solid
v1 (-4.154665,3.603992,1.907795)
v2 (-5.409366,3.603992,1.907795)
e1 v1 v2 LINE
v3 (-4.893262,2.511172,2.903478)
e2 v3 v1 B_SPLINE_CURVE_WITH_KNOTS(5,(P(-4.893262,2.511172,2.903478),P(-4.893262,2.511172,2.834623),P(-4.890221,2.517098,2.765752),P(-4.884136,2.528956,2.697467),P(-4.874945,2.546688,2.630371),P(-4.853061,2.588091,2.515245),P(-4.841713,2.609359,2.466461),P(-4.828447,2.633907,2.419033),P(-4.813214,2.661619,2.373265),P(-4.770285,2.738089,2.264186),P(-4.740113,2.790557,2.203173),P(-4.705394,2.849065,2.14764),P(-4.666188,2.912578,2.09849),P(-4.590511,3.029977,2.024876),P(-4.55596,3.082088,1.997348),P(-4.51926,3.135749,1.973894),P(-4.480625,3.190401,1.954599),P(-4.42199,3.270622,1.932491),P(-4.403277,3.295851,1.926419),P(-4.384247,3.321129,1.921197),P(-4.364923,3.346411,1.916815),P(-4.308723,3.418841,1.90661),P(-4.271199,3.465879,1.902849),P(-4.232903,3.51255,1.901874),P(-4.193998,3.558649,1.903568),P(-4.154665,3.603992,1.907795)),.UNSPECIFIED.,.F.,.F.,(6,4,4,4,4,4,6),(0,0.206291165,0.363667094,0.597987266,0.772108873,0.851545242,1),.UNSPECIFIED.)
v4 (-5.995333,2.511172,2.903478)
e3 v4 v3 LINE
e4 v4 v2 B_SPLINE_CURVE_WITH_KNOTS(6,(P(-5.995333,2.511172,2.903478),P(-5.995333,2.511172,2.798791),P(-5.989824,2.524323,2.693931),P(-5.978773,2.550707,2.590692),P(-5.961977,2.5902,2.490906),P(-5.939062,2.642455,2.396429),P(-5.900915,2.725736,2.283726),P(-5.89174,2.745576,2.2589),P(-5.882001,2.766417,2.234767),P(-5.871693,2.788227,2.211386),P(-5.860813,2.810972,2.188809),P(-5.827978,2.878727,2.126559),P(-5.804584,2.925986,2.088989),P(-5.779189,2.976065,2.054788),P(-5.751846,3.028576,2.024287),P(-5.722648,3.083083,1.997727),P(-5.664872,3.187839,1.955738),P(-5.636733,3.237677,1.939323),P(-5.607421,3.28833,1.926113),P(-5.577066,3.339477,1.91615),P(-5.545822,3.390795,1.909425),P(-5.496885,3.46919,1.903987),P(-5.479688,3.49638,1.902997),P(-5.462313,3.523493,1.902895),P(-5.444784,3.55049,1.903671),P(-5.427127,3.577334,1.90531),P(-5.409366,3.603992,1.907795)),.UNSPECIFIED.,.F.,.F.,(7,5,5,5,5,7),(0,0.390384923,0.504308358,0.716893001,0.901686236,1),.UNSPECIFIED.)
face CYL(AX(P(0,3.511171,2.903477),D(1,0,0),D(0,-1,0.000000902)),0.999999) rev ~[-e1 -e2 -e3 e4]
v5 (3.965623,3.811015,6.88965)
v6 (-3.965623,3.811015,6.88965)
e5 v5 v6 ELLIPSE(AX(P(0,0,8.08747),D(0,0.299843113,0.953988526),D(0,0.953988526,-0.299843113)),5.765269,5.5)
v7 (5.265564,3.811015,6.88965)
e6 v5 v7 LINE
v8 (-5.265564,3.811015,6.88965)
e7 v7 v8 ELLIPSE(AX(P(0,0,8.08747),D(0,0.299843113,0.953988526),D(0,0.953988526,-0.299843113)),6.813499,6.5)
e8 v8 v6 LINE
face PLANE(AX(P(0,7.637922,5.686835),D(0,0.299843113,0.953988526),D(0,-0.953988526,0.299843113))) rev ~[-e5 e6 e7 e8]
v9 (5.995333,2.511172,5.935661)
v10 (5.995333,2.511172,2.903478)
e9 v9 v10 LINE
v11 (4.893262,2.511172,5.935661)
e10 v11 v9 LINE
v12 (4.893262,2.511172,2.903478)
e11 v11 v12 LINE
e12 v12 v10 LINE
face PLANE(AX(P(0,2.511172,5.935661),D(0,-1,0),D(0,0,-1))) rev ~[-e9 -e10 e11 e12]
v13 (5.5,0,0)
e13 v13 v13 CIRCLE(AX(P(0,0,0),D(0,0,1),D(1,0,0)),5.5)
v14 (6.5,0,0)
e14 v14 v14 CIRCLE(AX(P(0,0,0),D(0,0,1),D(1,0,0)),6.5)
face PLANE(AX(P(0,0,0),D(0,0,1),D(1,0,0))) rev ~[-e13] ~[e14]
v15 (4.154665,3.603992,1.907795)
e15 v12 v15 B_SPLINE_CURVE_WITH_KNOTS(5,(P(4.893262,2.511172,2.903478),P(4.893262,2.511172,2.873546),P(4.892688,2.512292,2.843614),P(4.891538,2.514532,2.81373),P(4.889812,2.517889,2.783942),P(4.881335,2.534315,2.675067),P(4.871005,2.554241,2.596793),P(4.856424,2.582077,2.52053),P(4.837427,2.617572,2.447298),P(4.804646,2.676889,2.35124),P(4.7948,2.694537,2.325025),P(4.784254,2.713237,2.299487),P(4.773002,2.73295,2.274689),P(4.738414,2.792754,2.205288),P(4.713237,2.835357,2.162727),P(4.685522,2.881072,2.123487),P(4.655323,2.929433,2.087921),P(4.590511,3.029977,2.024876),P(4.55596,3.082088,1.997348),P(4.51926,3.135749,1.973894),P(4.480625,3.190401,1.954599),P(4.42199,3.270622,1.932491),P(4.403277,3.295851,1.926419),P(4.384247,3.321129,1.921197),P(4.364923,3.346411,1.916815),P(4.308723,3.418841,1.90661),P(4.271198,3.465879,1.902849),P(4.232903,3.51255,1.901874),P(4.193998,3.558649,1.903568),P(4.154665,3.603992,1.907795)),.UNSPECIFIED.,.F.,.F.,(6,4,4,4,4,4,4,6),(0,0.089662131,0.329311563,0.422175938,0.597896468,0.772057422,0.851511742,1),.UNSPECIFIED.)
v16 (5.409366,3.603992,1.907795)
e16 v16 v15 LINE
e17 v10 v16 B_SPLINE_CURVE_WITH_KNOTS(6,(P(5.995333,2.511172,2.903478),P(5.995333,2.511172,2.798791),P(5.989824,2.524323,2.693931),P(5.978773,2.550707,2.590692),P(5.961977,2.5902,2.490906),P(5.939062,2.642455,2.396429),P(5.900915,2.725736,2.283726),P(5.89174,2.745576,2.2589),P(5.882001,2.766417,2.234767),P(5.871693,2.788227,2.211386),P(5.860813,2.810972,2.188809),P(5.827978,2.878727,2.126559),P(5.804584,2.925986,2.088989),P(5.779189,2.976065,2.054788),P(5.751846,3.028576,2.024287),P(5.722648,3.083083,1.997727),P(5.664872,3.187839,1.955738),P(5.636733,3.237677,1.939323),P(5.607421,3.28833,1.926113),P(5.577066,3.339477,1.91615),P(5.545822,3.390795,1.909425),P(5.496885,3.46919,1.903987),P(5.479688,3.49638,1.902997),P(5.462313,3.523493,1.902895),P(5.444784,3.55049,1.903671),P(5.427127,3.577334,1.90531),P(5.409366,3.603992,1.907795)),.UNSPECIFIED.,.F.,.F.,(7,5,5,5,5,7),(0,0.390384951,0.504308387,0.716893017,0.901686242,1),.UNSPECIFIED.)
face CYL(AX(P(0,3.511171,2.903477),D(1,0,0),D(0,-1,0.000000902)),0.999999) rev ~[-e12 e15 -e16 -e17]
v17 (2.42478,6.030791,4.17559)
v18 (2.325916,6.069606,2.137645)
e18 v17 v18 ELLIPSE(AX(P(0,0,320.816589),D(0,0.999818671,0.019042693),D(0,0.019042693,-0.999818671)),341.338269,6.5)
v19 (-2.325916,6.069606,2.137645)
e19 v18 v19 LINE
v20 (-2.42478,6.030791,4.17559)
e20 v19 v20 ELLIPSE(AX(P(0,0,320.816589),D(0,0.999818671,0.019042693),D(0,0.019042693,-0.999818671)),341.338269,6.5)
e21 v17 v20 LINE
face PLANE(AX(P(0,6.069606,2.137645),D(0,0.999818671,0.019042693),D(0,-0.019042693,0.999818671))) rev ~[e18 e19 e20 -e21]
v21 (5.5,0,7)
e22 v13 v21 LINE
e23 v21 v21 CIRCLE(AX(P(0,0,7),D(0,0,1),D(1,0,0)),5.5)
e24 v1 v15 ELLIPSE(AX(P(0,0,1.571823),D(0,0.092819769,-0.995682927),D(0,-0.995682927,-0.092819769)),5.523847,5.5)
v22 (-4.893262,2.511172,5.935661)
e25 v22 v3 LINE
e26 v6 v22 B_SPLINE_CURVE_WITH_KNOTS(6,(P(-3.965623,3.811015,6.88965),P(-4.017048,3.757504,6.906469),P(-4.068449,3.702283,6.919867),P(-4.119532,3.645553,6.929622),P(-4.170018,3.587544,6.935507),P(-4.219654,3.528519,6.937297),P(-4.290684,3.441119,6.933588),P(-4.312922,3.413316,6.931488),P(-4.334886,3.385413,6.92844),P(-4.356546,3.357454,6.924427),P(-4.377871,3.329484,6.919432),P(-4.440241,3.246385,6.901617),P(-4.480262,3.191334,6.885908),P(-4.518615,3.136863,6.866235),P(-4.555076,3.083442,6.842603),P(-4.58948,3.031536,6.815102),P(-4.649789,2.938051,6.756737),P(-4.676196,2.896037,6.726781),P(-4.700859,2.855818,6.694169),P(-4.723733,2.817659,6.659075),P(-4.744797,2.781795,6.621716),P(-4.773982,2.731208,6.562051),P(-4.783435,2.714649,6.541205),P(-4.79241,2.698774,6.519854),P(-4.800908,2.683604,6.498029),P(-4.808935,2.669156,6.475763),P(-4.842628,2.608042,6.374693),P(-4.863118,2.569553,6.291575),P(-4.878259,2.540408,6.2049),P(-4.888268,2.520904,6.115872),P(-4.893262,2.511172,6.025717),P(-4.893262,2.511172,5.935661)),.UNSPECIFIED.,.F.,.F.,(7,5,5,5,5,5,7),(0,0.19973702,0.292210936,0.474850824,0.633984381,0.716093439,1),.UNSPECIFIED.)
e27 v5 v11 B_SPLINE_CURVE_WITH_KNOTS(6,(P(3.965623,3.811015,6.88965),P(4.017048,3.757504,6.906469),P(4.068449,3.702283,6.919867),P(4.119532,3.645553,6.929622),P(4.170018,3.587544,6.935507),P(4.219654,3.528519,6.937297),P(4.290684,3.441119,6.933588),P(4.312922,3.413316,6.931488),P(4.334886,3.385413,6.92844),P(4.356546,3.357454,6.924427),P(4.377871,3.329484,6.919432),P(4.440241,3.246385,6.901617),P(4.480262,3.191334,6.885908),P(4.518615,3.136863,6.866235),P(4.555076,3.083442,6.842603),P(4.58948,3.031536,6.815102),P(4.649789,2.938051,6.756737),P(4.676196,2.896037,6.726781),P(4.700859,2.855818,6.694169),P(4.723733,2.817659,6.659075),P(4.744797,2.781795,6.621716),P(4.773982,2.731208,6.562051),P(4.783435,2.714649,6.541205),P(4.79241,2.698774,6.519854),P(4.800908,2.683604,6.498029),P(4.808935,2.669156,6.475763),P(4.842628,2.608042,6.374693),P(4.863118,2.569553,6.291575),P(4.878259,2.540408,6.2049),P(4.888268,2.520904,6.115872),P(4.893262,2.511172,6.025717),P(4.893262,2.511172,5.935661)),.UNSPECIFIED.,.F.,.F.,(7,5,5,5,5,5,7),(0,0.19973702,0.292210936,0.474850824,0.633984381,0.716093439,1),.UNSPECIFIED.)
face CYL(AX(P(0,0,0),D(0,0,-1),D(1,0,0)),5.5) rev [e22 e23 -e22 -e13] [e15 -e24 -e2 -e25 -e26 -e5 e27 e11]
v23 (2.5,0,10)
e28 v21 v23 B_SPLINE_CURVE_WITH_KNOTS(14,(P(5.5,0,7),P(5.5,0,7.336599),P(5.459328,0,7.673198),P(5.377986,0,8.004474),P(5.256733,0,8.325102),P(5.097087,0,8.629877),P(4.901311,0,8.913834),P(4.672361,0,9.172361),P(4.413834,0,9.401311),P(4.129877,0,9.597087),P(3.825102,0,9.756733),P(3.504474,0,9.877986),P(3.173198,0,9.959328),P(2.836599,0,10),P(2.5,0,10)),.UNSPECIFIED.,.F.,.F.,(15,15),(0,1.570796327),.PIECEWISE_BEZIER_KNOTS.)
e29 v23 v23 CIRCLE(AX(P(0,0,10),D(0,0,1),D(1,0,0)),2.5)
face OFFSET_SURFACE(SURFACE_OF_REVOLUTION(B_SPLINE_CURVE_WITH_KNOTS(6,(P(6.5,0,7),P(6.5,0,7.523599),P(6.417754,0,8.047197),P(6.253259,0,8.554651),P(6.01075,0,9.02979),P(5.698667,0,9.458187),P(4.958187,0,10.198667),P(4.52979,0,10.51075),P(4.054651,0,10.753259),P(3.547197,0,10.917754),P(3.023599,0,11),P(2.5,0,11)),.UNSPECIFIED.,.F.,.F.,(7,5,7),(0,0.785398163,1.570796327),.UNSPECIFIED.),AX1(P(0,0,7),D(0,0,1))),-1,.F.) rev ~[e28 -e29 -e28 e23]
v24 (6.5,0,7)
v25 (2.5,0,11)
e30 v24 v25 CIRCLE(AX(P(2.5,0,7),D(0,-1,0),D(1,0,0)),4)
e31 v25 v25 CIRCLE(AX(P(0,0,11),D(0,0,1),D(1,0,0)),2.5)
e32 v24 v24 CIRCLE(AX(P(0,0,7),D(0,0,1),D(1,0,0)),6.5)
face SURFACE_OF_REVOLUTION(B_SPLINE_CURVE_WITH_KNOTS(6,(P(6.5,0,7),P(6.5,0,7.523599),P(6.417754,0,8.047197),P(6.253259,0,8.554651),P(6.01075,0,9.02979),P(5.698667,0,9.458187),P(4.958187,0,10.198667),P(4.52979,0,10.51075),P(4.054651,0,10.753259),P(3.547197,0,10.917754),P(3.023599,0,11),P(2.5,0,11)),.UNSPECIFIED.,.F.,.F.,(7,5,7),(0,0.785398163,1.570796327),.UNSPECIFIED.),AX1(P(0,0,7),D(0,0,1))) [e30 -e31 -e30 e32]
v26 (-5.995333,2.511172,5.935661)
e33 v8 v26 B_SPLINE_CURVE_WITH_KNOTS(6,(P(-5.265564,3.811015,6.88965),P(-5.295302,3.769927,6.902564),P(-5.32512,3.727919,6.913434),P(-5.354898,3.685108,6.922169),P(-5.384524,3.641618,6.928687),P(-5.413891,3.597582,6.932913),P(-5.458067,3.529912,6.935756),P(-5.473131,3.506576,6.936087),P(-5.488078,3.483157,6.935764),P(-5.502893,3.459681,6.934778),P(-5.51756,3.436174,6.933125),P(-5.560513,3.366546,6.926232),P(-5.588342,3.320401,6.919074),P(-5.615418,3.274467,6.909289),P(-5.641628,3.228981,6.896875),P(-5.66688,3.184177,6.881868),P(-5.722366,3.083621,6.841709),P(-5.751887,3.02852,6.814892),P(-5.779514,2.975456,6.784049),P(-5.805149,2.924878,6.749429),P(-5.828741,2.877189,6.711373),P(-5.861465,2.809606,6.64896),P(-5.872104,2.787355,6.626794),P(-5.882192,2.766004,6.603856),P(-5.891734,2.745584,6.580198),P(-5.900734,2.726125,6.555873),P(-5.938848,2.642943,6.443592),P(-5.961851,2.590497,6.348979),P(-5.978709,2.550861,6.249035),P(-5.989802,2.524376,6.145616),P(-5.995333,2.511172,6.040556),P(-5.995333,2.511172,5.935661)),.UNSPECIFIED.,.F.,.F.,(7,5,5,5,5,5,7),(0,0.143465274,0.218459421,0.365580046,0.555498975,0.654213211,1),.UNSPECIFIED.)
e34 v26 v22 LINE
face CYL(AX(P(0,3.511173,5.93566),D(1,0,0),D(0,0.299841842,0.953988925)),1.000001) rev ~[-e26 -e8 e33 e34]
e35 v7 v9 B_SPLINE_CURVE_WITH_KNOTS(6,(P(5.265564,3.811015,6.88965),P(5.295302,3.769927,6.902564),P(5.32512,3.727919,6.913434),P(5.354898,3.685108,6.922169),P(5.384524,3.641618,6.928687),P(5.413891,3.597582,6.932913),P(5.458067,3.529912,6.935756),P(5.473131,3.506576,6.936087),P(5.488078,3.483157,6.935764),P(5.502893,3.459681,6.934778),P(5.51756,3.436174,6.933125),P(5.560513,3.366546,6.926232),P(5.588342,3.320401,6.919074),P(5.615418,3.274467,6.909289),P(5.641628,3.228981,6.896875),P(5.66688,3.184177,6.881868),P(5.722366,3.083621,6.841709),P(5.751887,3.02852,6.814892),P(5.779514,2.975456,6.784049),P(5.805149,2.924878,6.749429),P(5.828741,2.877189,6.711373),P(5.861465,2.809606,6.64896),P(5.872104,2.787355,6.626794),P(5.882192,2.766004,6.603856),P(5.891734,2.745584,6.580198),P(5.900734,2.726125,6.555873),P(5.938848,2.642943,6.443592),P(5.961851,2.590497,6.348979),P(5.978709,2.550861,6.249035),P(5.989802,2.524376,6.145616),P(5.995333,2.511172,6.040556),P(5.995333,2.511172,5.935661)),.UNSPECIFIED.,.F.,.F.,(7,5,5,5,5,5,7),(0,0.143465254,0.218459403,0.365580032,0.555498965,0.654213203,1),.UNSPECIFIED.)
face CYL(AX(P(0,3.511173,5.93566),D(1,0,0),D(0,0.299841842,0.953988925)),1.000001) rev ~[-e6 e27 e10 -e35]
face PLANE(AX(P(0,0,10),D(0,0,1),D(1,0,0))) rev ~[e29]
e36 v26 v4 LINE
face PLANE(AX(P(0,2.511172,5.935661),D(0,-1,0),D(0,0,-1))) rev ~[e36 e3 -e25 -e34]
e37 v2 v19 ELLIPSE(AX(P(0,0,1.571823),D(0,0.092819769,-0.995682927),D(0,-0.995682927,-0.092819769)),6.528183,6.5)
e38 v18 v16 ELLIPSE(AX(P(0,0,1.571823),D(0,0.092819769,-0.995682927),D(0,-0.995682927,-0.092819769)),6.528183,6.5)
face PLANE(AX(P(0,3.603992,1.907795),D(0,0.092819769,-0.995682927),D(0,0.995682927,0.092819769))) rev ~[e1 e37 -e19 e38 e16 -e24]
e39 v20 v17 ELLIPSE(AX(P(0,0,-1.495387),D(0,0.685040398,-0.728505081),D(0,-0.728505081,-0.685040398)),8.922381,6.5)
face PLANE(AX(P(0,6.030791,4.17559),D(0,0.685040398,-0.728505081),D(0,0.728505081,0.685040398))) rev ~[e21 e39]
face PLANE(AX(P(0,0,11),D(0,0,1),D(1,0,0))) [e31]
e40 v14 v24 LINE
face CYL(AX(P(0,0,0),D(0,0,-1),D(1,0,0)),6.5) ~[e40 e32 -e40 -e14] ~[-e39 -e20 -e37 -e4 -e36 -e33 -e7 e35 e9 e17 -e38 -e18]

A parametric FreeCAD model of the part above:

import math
import FreeCAD as App
import Part
import Sketcher
from FreeCAD import Vector
Q = App.Units.Quantity


def edges_at(feature, points):
    """Names of the edges that pass closest to the given points."""
    edges = feature.Shape.Edges
    near = lambda p: min(range(len(edges)), key=lambda i: edges[i].distToShape(Part.Vertex(*p))[0])
    return sorted({f"Edge{near(p) + 1}" for p in points})


def faces_at(feature, points):
    """Names of the faces that lie closest to the given points."""
    faces = feature.Shape.Faces
    near = lambda p: min(range(len(faces)), key=lambda i: faces[i].distToShape(Part.Vertex(*p))[0])
    return sorted({f"Face{near(p) + 1}" for p in points})

doc = App.newDocument("Part")
body = doc.addObject("PartDesign::Body", "Body")

# Sketch on XY plane
sketch1 = body.newObject("Sketcher::SketchObject", "Sketch")
sketch1.AttachmentSupport = (doc.getObject("XY_Plane"), [""])
sketch1.MapMode = "FlatFace"
sketch1.addGeometry(Part.Circle(Vector(0, 0, 0), Vector(0, 0, 1), 6), False)
sketch1.addConstraint(Sketcher.Constraint("Coincident", 0, 3, -1, 1))
sketch1.addConstraint(Sketcher.Constraint("Diameter", 0, Q("13 mm")))
pad1 = body.newObject("PartDesign::Pad", "Pad")
pad1.Profile = sketch1
pad1.Length = 11
doc.recompute()

fillet = body.newObject("PartDesign::Fillet", "Fillet")
fillet.Base = (pad1, edges_at(pad1, [(-6.5, 0, 11)]))
fillet.Radius = 4
doc.recompute()

thickness = body.newObject("PartDesign::Thickness", "Thickness")
thickness.Base = (fillet, faces_at(fillet, [(0, 0, 0)]))
thickness.Value = 1
thickness.Reversed = True
thickness.Join = "Arc"

# Sketch on YZ plane
sketch2 = body.newObject("Sketcher::SketchObject", "Sketch001")
sketch2.AttachmentSupport = (doc.getObject("YZ_Plane"), [""])
sketch2.MapMode = "FlatFace"
sketch2.addGeometry(Part.LineSegment(Vector(6.030791, 4.17559, 0), Vector(7.637922, 5.686835, 0)), False)
sketch2.addGeometry(Part.LineSegment(Vector(7.637922, 5.686835, 0), Vector(3.811015, 6.88965, 0)), False)
sketch2.addGeometry(Part.ArcOfCircle(Part.Circle(Vector(3.511173, 5.93566, 0), Vector(0, 0, 1), 1.000001), math.radians(72.551896), math.radians(179.999956)), False)
sketch2.addGeometry(Part.LineSegment(Vector(2.511172, 5.935661, 0), Vector(2.511172, 2.903478, 0)), False)
sketch2.addGeometry(Part.ArcOfCircle(Part.Circle(Vector(3.511171, 2.903477, 0), Vector(0, 0, 1), 0.999999), math.radians(179.999948), math.radians(275.325907)), False)
sketch2.addGeometry(Part.LineSegment(Vector(3.603992, 1.907795, 0), Vector(6.069606, 2.137645, 0)), False)
sketch2.addGeometry(Part.LineSegment(Vector(6.069606, 2.137645, 0), Vector(6.030791, 4.17559, 0)), False)
sketch2.addConstraint(Sketcher.Constraint("Coincident", 0, 2, 1, 1))
sketch2.addConstraint(Sketcher.Constraint("Coincident", 1, 2, 2, 1))
sketch2.addConstraint(Sketcher.Constraint("Coincident", 2, 2, 3, 1))
sketch2.addConstraint(Sketcher.Constraint("Coincident", 3, 2, 4, 1))
sketch2.addConstraint(Sketcher.Constraint("Coincident", 4, 2, 5, 1))
sketch2.addConstraint(Sketcher.Constraint("Coincident", 5, 2, 6, 1))
sketch2.addConstraint(Sketcher.Constraint("Coincident", 6, 2, 0, 1))
sketch2.addConstraint(Sketcher.Constraint("Vertical", 3))
sketch2.addConstraint(Sketcher.Constraint("Radius", 2, Q("1.000001 mm")))
sketch2.addConstraint(Sketcher.Constraint("Radius", 4, Q("0.999999 mm")))
sketch2.addConstraint(Sketcher.Constraint("DistanceX", 4, 2, 6, 2, Q("2.426799 mm")))
sketch2.addConstraint(Sketcher.Constraint("Distance", 1, Q("4.011481 mm")))
sketch2.addConstraint(Sketcher.Constraint("DistanceY", 3, 2, 3, 1, Q("3.032183 mm")))
sketch2.addConstraint(Sketcher.Constraint("DistanceY", -1, 1, 2, 3, Q("5.93566 mm")))
sketch2.addConstraint(Sketcher.Constraint("DistanceX", -1, 1, 4, 3, Q("3.511171 mm")))
sketch2.addConstraint(Sketcher.Constraint("DistanceX", -1, 1, 0, 2, Q("7.637922 mm")))
sketch2.addConstraint(Sketcher.Constraint("DistanceY", -1, 1, 1, 2, Q("6.88965 mm")))
sketch2.addConstraint(Sketcher.Constraint("DistanceY", -1, 1, 2, 2, Q("5.935661 mm")))
sketch2.addConstraint(Sketcher.Constraint("DistanceX", -1, 1, 4, 2, Q("3.603992 mm")))
sketch2.addConstraint(Sketcher.Constraint("DistanceY", -1, 1, 6, 2, Q("4.17559 mm")))
sketch2.addConstraint(Sketcher.Constraint("DistanceY", 4, 2, 5, 2, Q("0.22985 mm")))
sketch2.addConstraint(Sketcher.Constraint("DistanceY", 5, 2, 0, 2, Q("3.54919 mm")))
sketch2.addConstraint(Sketcher.Constraint("Distance", 5, Q("2.476304 mm")))
pocket1 = body.newObject("PartDesign::Pocket", "Pocket")
pocket1.Profile = sketch2
pocket1.Length = 25
pocket1.Midplane = True

doc.recompute()
